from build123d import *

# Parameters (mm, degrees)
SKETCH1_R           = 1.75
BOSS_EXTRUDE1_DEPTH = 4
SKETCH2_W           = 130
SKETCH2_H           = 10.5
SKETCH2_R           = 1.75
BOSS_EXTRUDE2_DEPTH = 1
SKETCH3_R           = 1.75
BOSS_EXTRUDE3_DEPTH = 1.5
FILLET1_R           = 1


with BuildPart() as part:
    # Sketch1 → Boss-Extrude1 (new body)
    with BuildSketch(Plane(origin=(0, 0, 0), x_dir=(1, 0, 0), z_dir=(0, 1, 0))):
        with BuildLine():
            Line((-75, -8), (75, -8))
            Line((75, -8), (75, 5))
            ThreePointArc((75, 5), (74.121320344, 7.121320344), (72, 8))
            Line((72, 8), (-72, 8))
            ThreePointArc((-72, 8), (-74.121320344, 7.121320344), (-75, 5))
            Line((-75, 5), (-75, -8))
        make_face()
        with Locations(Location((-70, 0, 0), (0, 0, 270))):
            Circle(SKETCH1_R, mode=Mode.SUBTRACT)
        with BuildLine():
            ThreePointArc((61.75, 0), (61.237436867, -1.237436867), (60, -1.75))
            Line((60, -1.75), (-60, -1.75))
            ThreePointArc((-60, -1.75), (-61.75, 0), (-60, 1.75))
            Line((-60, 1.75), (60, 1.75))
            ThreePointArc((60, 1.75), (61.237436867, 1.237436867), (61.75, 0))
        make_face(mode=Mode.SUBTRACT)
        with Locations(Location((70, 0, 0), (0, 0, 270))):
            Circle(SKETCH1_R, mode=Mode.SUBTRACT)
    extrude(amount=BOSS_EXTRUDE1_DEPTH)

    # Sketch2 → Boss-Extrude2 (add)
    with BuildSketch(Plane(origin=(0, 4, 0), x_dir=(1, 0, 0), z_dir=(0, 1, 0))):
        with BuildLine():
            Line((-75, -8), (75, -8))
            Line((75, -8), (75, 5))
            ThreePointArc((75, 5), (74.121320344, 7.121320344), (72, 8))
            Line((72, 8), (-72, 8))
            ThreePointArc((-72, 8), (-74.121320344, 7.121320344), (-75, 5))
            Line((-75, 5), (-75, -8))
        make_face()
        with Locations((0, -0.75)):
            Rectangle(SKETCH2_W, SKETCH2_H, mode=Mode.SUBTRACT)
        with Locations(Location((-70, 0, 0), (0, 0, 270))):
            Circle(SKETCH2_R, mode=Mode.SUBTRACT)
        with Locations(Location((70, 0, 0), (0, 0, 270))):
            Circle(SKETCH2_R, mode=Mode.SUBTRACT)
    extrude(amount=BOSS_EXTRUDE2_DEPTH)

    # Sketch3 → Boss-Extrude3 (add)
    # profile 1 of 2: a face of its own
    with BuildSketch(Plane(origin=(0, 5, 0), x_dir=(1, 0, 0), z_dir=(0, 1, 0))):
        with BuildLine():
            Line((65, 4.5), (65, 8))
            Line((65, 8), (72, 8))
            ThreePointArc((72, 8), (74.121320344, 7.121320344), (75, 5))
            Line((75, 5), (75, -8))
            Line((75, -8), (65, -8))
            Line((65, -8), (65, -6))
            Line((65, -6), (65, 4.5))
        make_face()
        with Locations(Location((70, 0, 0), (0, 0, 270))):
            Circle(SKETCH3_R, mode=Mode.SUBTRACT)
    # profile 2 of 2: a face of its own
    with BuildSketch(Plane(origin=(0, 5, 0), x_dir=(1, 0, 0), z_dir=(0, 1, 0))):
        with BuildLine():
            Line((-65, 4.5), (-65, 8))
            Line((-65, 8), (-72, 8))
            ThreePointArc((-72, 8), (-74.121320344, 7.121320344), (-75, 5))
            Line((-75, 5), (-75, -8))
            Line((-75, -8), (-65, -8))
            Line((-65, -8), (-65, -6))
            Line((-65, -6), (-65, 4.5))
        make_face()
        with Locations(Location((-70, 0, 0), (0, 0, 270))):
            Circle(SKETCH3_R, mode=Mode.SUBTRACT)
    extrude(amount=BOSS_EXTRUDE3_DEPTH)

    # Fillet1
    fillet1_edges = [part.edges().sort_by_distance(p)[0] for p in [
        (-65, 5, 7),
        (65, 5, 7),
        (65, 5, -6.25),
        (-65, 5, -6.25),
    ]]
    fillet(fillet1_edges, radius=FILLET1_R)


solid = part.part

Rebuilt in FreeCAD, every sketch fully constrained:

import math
import FreeCAD as App
import Part
import Sketcher
Q = App.Units.Quantity


def edges_at(feature, points):
    """Names of the edges that pass closest to the given points."""
    edges = feature.Shape.Edges
    near = lambda p: min(range(len(edges)), key=lambda i: edges[i].distToShape(Part.Vertex(*p))[0])
    return sorted({f"Edge{near(p) + 1}" for p in points})


def add_polygon(sketch, points):
    """Adds a closed chain of lines whose ends are joined by coincident constraints."""
    first, n = sketch.GeometryCount, len(points)
    for a, b in zip(points, points[1:] + points[:1]):
        sketch.addGeometry(Part.LineSegment(App.Vector(*a, 0), App.Vector(*b, 0)), False)
    for i in range(n):
        sketch.addConstraint(Sketcher.Constraint("Coincident", first + i, 2, first + (i + 1) % n, 1))

doc = App.newDocument("Part")
params = doc.addObject("Spreadsheet::Sheet", "Params")
for row, (alias, value) in enumerate([
    ("sketch1_radius", "3 mm"),
    ("sketch1_diameter", "3.5 mm"),
    ("sketch1_width", "150 mm"),
    ("sketch1_width2", "120 mm"),
    ("sketch1_height", "13 mm"),
    ("pad1_length", "4 mm"),
    ("sketch2_radius", "3 mm"),
    ("sketch2_diameter", "3.5 mm"),
    ("sketch2_width", "150 mm"),
    ("sketch2_width2", "130 mm"),
    ("sketch2_height", "13 mm"),
    ("pad2_length", "1 mm"),
    ("sketch3_radius", "3 mm"),
    ("sketch3_diameter", "3.5 mm"),
    ("sketch3_width", "7 mm"),
    ("sketch3_height", "16 mm"),
    ("pad3_length", "1.5 mm"),
    ("fillet_radius", "1 mm"),
], start=1):
    params.set(f"A{row}", alias)
    params.set(f"B{row}", "=" + value)
    params.setAlias(f"B{row}", alias)

body = doc.addObject("PartDesign::Body", "Body")

# Sketch on XZ plane
sketch1 = doc.addObject("Sketcher::SketchObject", "Sketch")
body.addObject(sketch1)
sketch1.AttachmentSupport = (doc.XZ_Plane, [""])
sketch1.MapMode = "FlatFace"
sketch1.addGeometry([
    Part.LineSegment(App.Vector(-75, 8, 0), App.Vector(75, 8, 0)),  # 0
    Part.LineSegment(App.Vector(75, 8, 0), App.Vector(75, -5, 0)),  # 1
    Part.ArcOfCircle(Part.Circle(App.Vector(72, -5, 0), App.Vector(0, 0, 1), 3), math.radians(-90), math.radians(0)),  # 2
    Part.LineSegment(App.Vector(72, -8, 0), App.Vector(-72, -8, 0)),  # 3
    Part.ArcOfCircle(Part.Circle(App.Vector(-72, -5, 0), App.Vector(0, 0, 1), 3), math.radians(180), math.radians(270)),  # 4
    Part.LineSegment(App.Vector(-75, -5, 0), App.Vector(-75, 8, 0)),  # 5
    Part.Circle(App.Vector(-70, 0, 0), App.Vector(0, 0, 1), 1.8),  # 6
    Part.Circle(App.Vector(70, 0, 0), App.Vector(0, 0, 1), 1.8),  # 7
    Part.ArcOfCircle(Part.Circle(App.Vector(60, 0, 0), App.Vector(0, 0, 1), 1.8), math.radians(-90), math.radians(0)),  # 8
    Part.ArcOfCircle(Part.Circle(App.Vector(60, 0, 0), App.Vector(0, 0, 1), 1.8), math.radians(0), math.radians(90)),  # 9
    Part.LineSegment(App.Vector(60, 1.8, 0), App.Vector(-60, 1.8, 0)),  # 10
    Part.ArcOfCircle(Part.Circle(App.Vector(-60, 0, 0), App.Vector(0, 0, 1), 1.8), math.radians(90), math.radians(270)),  # 11
    Part.LineSegment(App.Vector(-60, -1.8, 0), App.Vector(60, -1.8, 0)),  # 12
], False)
sketch1.addConstraint([
    Sketcher.Constraint("Coincident", 0, 2, 1, 1),
    Sketcher.Constraint("Tangent", 1, 2, 2, 2),
    Sketcher.Constraint("Tangent", 2, 1, 3, 1),
    Sketcher.Constraint("Tangent", 3, 2, 4, 2),
    Sketcher.Constraint("Tangent", 4, 1, 5, 1),
    Sketcher.Constraint("Coincident", 5, 2, 0, 1),
    Sketcher.Constraint("Tangent", 8, 2, 9, 1),
    Sketcher.Constraint("Tangent", 9, 2, 10, 1),
    Sketcher.Constraint("Tangent", 10, 2, 11, 1),
    Sketcher.Constraint("Tangent", 11, 2, 12, 1),
    Sketcher.Constraint("Tangent", 12, 2, 8, 1),
    Sketcher.Constraint("Horizontal", 0),
    Sketcher.Constraint("Vertical", 1),
    Sketcher.Constraint("Horizontal", 3),
    Sketcher.Constraint("Vertical", 5),
    Sketcher.Constraint("Horizontal", 10),
    Sketcher.Constraint("Horizontal", 12),
    Sketcher.Constraint("Equal", 2, 4),
    Sketcher.Constraint("Equal", 6, 7),
    Sketcher.Constraint("Equal", 7, 8),
    Sketcher.Constraint("Equal", 8, 9),
    Sketcher.Constraint("Symmetric", 6, 3, 7, 3, -1, 1),
    Sketcher.Constraint("Symmetric", 8, 3, 11, 3, -1, 1),
    Sketcher.Constraint("PointOnObject", 6, 3, -1),
    Sketcher.Constraint("PointOnObject", 8, 2, -1),
    Sketcher.Constraint("Radius", 2, Q("3 mm")),
    Sketcher.Constraint("Diameter", 6, Q("3.5 mm")),
    Sketcher.Constraint("DistanceX", 0, 1, 0, 2, Q("150 mm")),
    Sketcher.Constraint("DistanceX", 10, 2, 10, 1, Q("120 mm")),
    Sketcher.Constraint("DistanceY", 1, 2, 1, 1, Q("13 mm")),
    Sketcher.Constraint("DistanceX", -1, 1, 2, 3, Q("72 mm")),
    Sketcher.Constraint("DistanceY", 2, 3, -1, 1, Q("5 mm")),
    Sketcher.Constraint("DistanceX", 6, 3, -1, 1, Q("70 mm")),
])
sketch1.setExpression("Constraints[25]", "Params.sketch1_radius")
sketch1.setExpression("Constraints[26]", "Params.sketch1_diameter")
sketch1.setExpression("Constraints[27]", "Params.sketch1_width")
sketch1.setExpression("Constraints[28]", "Params.sketch1_width2")
sketch1.setExpression("Constraints[29]", "Params.sketch1_height")
pad1 = doc.addObject("PartDesign::Pad", "Pad")
body.addObject(pad1)
pad1.Profile = sketch1
pad1.setExpression("Length", "Params.pad1_length")
pad1.Reversed = True

# Sketch on XZ plane
sketch2 = doc.addObject("Sketcher::SketchObject", "Sketch001")
body.addObject(sketch2)
sketch2.AttachmentSupport = (doc.XZ_Plane, [""])
sketch2.MapMode = "FlatFace"
sketch2.AttachmentOffset = App.Placement(App.Vector(0, 0, -4), App.Rotation())
sketch2.addGeometry(Part.LineSegment(App.Vector(-75, 8, 0), App.Vector(75, 8, 0)), False)  # 0
sketch2.addGeometry(Part.LineSegment(App.Vector(75, 8, 0), App.Vector(75, -5, 0)), False)  # 1
sketch2.addGeometry(Part.ArcOfCircle(Part.Circle(App.Vector(72, -5, 0), App.Vector(0, 0, 1), 3), math.radians(-90), math.radians(0)), False)  # 2
sketch2.addGeometry(Part.LineSegment(App.Vector(72, -8, 0), App.Vector(-72, -8, 0)), False)  # 3
sketch2.addGeometry(Part.ArcOfCircle(Part.Circle(App.Vector(-72, -5, 0), App.Vector(0, 0, 1), 3), math.radians(180), math.radians(270)), False)  # 4
sketch2.addGeometry(Part.LineSegment(App.Vector(-75, -5, 0), App.Vector(-75, 8, 0)), False)  # 5
sketch2.addGeometry(Part.Circle(App.Vector(-70, 0, 0), App.Vector(0, 0, 1), 1.8), False)  # 6
add_polygon(sketch2, [(65, 6), (-65, 6), (-65, -4.5), (65, -4.5)])  # lines 7-10
sketch2.addGeometry(Part.Circle(App.Vector(70, 0, 0), App.Vector(0, 0, 1), 1.8), False)  # 11
sketch2.addConstraint([
    Sketcher.Constraint("Coincident", 0, 2, 1, 1),
    Sketcher.Constraint("Tangent", 1, 2, 2, 2),
    Sketcher.Constraint("Tangent", 2, 1, 3, 1),
    Sketcher.Constraint("Tangent", 3, 2, 4, 2),
    Sketcher.Constraint("Tangent", 4, 1, 5, 1),
    Sketcher.Constraint("Coincident", 5, 2, 0, 1),
    Sketcher.Constraint("Horizontal", 0),
    Sketcher.Constraint("Vertical", 1),
    Sketcher.Constraint("Horizontal", 3),
    Sketcher.Constraint("Vertical", 5),
    Sketcher.Constraint("Horizontal", 7),
    Sketcher.Constraint("Vertical", 8),
    Sketcher.Constraint("Horizontal", 9),
    Sketcher.Constraint("Vertical", 10),
    Sketcher.Constraint("Equal", 2, 4),
    Sketcher.Constraint("Equal", 6, 11),
    Sketcher.Constraint("Symmetric", 6, 3, 11, 3, -1, 1),
    Sketcher.Constraint("PointOnObject", 6, 3, -1),
    Sketcher.Constraint("Radius", 2, Q("3 mm")),
    Sketcher.Constraint("Diameter", 6, Q("3.5 mm")),
    Sketcher.Constraint("DistanceX", 0, 1, 0, 2, Q("150 mm")),
    Sketcher.Constraint("DistanceX", 7, 2, 7, 1, Q("130 mm")),
    Sketcher.Constraint("DistanceY", 1, 2, 1, 1, Q("13 mm")),
    Sketcher.Constraint("DistanceY", 8, 2, 8, 1, Q("10.5 mm")),
    Sketcher.Constraint("DistanceX", -1, 1, 2, 3, Q("72 mm")),
    Sketcher.Constraint("DistanceY", 2, 3, -1, 1, Q("5 mm")),
    Sketcher.Constraint("DistanceX", 6, 3, -1, 1, Q("70 mm")),
    Sketcher.Constraint("DistanceX", 7, 2, -1, 1, Q("65 mm")),
    Sketcher.Constraint("DistanceY", -1, 1, 7, 2, Q("6 mm")),
])
sketch2.setExpression("Constraints[22]", "Params.sketch2_radius")
sketch2.setExpression("Constraints[23]", "Params.sketch2_diameter")
sketch2.setExpression("Constraints[24]", "Params.sketch2_width")
sketch2.setExpression("Constraints[25]", "Params.sketch2_width2")
sketch2.setExpression("Constraints[26]", "Params.sketch2_height")
pad2 = doc.addObject("PartDesign::Pad", "Pad001")
body.addObject(pad2)
pad2.Profile = sketch2
pad2.setExpression("Length", "Params.pad2_length")
pad2.Reversed = True

# Sketch on XZ plane
sketch3 = doc.addObject("Sketcher::SketchObject", "Sketch002")
body.addObject(sketch3)
sketch3.AttachmentSupport = (doc.XZ_Plane, [""])
sketch3.MapMode = "FlatFace"
sketch3.AttachmentOffset = App.Placement(App.Vector(0, 0, -5), App.Rotation())
sketch3.addGeometry([
    Part.LineSegment(App.Vector(72, -8, 0), App.Vector(65, -8, 0)),  # 0
    Part.LineSegment(App.Vector(65, -8, 0), App.Vector(65, 8, 0)),  # 1
    Part.LineSegment(App.Vector(65, 8, 0), App.Vector(75, 8, 0)),  # 2
    Part.LineSegment(App.Vector(75, 8, 0), App.Vector(75, -5, 0)),  # 3
    Part.ArcOfCircle(Part.Circle(App.Vector(72, -5, 0), App.Vector(0, 0, 1), 3), math.radians(-90), math.radians(0)),  # 4
    Part.Circle(App.Vector(70, 0, 0), App.Vector(0, 0, 1), 1.8),  # 5
    Part.LineSegment(App.Vector(-65, -8, 0), App.Vector(-72, -8, 0)),  # 6
    Part.ArcOfCircle(Part.Circle(App.Vector(-72, -5, 0), App.Vector(0, 0, 1), 3), math.radians(180), math.radians(270)),  # 7
    Part.LineSegment(App.Vector(-75, -5, 0), App.Vector(-75, 8, 0)),  # 8
    Part.LineSegment(App.Vector(-75, 8, 0), App.Vector(-65, 8, 0)),  # 9
    Part.LineSegment(App.Vector(-65, 8, 0), App.Vector(-65, -8, 0)),  # 10
    Part.Circle(App.Vector(-70, 0, 0), App.Vector(0, 0, 1), 1.8),  # 11
], False)
sketch3.addConstraint([
    Sketcher.Constraint("Coincident", 0, 2, 1, 1),
    Sketcher.Constraint("Coincident", 1, 2, 2, 1),
    Sketcher.Constraint("Coincident", 2, 2, 3, 1),
    Sketcher.Constraint("Tangent", 3, 2, 4, 2),
    Sketcher.Constraint("Tangent", 4, 1, 0, 1),
    Sketcher.Constraint("Tangent", 6, 2, 7, 2),
    Sketcher.Constraint("Tangent", 7, 1, 8, 1),
    Sketcher.Constraint("Coincident", 8, 2, 9, 1),
    Sketcher.Constraint("Coincident", 9, 2, 10, 1),
    Sketcher.Constraint("Coincident", 10, 2, 6, 1),
    Sketcher.Constraint("Horizontal", 0),
    Sketcher.Constraint("Vertical", 1),
    Sketcher.Constraint("Horizontal", 2),
    Sketcher.Constraint("Vertical", 3),
    Sketcher.Constraint("Horizontal", 6),
    Sketcher.Constraint("Vertical", 8),
    Sketcher.Constraint("Horizontal", 9),
    Sketcher.Constraint("Vertical", 10),
    Sketcher.Constraint("Equal", 4, 7),
    Sketcher.Constraint("Equal", 5, 11),
    Sketcher.Constraint("Symmetric", 5, 3, 11, 3, -1, 1),
    Sketcher.Constraint("Symmetric", 0, 2, 9, 2, -1, 1),
    Sketcher.Constraint("Symmetric", 4, 3, 7, 3, -2),
    Sketcher.Constraint("PointOnObject", 5, 3, -1),
    Sketcher.Constraint("Horizontal", 2, 2, 8, 2),
    Sketcher.Constraint("Radius", 4, Q("3 mm")),
    Sketcher.Constraint("Diameter", 5, Q("3.5 mm")),
    Sketcher.Constraint("DistanceX", 0, 2, 0, 1, Q("7 mm")),
    Sketcher.Constraint("DistanceY", 1, 1, 1, 2, Q("16 mm")),
    Sketcher.Constraint("DistanceX", -1, 1, 4, 3, Q("72 mm")),
    Sketcher.Constraint("DistanceX", -1, 1, 5, 3, Q("70 mm")),
])
sketch3.setExpression("Constraints[25]", "Params.sketch3_radius")
sketch3.setExpression("Constraints[26]", "Params.sketch3_diameter")
sketch3.setExpression("Constraints[27]", "Params.sketch3_width")
sketch3.setExpression("Constraints[28]", "Params.sketch3_height")
pad3 = doc.addObject("PartDesign::Pad", "Pad002")
body.addObject(pad3)
pad3.Profile = sketch3
pad3.setExpression("Length", "Params.pad3_length")
pad3.Reversed = True
doc.recompute()

fillet = doc.addObject("PartDesign::Fillet", "Fillet")
body.addObject(fillet)
fillet.Base = (pad3, edges_at(pad3, [
    (-65, 5, 7),
    (65, 5, 7),
    (65, 5, -6.25),
    (-65, 5, -6.25),
]))
fillet.setExpression("Radius", "Params.fillet_radius")

doc.recompute()
